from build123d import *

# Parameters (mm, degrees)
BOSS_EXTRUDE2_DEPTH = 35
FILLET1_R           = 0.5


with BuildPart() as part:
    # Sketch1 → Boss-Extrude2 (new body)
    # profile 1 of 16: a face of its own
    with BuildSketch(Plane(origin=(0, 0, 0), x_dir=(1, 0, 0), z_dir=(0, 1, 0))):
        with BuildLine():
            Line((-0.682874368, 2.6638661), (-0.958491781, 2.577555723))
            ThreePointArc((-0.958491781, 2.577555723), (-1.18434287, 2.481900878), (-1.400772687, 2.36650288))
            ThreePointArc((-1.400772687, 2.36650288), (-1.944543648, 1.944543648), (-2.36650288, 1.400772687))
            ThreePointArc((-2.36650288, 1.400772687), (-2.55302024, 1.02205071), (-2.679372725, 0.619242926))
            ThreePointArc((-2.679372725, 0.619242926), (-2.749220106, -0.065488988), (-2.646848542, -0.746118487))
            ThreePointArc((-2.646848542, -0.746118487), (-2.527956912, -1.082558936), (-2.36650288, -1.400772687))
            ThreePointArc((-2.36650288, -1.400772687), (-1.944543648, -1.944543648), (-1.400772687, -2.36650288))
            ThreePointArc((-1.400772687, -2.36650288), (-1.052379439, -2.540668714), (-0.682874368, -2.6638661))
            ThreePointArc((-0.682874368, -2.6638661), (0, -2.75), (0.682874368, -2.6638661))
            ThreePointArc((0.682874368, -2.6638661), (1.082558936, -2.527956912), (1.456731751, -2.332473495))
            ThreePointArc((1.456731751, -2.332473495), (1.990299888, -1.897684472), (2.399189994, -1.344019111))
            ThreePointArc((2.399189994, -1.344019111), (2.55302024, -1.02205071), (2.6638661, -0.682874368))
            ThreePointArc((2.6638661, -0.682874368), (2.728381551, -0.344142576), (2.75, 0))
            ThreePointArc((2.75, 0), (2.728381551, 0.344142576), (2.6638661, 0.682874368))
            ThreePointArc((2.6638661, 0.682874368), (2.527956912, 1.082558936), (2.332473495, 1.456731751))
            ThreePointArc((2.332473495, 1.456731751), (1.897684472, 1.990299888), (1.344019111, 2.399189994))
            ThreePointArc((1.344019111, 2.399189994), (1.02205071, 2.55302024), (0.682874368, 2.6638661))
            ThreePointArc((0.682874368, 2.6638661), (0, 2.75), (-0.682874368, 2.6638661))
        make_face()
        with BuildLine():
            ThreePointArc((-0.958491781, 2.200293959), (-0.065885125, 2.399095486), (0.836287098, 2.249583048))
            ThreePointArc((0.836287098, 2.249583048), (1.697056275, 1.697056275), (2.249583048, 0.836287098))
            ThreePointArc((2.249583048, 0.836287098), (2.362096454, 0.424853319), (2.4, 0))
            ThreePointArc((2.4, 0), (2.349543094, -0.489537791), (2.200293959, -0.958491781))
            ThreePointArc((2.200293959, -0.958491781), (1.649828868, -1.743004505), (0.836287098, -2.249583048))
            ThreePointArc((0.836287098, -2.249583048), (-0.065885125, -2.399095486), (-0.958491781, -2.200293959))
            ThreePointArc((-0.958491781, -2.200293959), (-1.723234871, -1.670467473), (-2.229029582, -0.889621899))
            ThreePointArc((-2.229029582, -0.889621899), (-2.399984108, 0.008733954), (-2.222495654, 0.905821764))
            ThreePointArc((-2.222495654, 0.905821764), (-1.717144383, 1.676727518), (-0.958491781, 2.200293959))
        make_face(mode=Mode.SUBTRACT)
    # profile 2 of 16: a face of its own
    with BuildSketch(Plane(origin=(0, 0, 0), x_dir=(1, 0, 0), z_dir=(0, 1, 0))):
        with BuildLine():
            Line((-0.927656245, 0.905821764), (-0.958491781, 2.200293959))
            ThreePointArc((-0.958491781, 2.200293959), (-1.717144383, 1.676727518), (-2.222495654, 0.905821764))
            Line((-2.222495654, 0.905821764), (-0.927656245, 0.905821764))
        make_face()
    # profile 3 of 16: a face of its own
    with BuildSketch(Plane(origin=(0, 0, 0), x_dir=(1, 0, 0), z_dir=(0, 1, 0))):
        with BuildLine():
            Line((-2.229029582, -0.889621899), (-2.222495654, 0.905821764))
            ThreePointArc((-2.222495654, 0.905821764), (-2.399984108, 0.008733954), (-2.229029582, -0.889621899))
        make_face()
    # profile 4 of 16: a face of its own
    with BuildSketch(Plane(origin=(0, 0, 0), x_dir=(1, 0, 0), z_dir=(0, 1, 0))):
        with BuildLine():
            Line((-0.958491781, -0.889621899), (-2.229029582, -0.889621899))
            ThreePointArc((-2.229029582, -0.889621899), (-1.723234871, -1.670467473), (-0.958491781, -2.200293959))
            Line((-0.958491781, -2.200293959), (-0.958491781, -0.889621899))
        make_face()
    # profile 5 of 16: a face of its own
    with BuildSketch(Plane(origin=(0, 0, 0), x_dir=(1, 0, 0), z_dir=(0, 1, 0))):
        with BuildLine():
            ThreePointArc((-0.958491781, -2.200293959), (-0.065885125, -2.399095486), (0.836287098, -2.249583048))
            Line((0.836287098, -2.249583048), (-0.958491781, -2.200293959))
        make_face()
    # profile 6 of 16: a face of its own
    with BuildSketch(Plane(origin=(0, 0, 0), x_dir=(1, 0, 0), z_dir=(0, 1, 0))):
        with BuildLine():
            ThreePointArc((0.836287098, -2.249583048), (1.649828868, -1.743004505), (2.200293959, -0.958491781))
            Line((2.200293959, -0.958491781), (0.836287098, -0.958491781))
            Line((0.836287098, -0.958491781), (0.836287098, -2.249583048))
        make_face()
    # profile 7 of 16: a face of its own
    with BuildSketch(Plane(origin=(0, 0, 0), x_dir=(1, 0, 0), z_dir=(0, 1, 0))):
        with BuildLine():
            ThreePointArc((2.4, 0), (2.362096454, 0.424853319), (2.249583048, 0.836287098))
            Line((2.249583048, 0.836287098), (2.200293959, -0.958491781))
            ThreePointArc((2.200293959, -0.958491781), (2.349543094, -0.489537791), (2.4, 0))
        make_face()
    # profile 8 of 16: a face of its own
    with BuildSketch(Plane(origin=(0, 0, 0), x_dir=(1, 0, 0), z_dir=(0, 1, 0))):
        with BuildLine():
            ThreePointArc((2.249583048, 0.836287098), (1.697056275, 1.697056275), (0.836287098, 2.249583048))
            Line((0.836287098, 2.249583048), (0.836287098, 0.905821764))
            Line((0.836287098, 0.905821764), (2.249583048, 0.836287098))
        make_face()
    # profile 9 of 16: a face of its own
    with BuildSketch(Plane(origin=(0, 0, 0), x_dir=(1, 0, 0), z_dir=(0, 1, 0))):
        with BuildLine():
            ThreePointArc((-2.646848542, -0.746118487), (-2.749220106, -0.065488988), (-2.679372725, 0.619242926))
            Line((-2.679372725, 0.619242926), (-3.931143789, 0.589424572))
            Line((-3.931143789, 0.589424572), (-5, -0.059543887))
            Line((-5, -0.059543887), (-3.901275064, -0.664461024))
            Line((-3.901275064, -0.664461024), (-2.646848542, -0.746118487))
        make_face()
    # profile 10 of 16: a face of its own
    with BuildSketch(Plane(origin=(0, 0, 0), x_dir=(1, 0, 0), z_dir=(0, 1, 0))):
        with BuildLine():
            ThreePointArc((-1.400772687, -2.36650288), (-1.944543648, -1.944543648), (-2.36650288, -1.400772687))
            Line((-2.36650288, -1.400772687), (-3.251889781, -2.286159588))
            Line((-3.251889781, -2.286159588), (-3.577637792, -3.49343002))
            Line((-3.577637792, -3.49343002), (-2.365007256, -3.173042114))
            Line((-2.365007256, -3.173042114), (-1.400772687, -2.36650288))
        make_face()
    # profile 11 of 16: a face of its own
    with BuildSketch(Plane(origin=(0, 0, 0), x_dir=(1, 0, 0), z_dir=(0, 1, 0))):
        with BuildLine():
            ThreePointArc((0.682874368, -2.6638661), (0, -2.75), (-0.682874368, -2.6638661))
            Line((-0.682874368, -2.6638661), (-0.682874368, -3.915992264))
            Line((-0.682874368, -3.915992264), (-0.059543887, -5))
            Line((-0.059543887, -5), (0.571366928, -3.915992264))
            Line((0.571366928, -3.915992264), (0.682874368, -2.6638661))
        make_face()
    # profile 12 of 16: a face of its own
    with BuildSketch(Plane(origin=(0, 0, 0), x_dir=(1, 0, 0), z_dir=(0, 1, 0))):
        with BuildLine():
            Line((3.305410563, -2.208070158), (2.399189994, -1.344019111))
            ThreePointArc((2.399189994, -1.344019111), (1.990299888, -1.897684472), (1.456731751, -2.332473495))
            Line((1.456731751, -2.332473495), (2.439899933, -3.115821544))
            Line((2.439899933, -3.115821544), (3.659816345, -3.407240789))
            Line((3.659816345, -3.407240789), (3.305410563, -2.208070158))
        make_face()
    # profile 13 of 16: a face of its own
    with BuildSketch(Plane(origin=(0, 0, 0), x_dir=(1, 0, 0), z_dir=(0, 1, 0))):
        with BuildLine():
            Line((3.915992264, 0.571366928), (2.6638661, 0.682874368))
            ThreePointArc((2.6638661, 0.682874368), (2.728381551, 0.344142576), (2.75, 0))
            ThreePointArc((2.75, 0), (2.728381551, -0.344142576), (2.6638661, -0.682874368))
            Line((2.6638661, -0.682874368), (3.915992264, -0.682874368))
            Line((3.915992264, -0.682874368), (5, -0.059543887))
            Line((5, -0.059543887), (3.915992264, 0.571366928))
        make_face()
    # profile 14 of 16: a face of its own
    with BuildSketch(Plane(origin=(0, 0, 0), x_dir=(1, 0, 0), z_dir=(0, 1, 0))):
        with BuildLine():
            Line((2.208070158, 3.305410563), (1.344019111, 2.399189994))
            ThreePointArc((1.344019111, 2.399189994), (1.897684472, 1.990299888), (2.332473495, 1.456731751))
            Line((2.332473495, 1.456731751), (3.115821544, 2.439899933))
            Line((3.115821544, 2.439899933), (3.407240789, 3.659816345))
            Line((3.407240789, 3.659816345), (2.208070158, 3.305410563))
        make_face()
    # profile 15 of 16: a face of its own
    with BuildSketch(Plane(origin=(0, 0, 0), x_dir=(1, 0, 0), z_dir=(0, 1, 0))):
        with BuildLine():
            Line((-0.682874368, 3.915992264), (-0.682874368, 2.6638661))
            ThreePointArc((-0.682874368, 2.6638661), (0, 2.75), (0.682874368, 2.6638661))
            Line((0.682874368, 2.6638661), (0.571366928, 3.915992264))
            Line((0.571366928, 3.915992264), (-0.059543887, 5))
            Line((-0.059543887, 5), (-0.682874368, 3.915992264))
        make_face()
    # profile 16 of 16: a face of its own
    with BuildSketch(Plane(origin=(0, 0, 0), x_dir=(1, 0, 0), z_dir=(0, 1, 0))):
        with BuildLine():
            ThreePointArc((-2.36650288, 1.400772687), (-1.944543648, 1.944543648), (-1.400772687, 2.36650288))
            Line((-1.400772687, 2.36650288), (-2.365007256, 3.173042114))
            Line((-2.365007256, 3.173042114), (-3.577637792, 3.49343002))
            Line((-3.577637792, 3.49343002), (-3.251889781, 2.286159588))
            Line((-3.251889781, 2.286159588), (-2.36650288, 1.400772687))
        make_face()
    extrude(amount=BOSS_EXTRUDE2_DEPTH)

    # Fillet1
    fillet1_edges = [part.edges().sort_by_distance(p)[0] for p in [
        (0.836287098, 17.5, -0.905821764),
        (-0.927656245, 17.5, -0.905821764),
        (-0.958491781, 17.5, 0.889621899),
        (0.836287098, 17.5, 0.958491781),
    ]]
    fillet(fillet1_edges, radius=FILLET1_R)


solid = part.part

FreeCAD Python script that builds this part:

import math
import FreeCAD as App
import Part
import Sketcher
Q = App.Units.Quantity


def edges_at(feature, points):
    """Names of the edges that pass closest to the given points."""
    edges = feature.Shape.Edges
    near = lambda p: min(range(len(edges)), key=lambda i: edges[i].distToShape(Part.Vertex(*p))[0])
    return sorted({f"Edge{near(p) + 1}" for p in points})

doc = App.newDocument("Part")
body = doc.addObject("PartDesign::Body", "Body")

sketch1 = body.newObject("Sketcher::SketchObject", "Sketch")
sketch1.AttachmentSupport = (doc.getObject("XZ_Plane"), [""])
sketch1.MapMode = "FlatFace"
sketch1.addGeometry([
    Part.LineSegment(App.Vector(-0.68, -2.66, 0), App.Vector(-0.96, -2.58, 0)),
    Part.ArcOfCircle(Part.Circle(App.Vector(0, 0, 0), App.Vector(0, 0, 1), 2.75), math.radians(-120.62), math.radians(-110.4)),
    Part.LineSegment(App.Vector(-1.4, -2.37, 0), App.Vector(-2.37, -3.17, 0)),
    Part.LineSegment(App.Vector(-2.37, -3.17, 0), App.Vector(-3.58, -3.49, 0)),
    Part.LineSegment(App.Vector(-3.58, -3.49, 0), App.Vector(-3.25, -2.29, 0)),
    Part.LineSegment(App.Vector(-3.25, -2.29, 0), App.Vector(-2.37, -1.4, 0)),
    Part.ArcOfCircle(Part.Circle(App.Vector(0, 0, 0), App.Vector(0, 0, 1), 2.75), math.radians(-166.99), math.radians(-149.38)),
    Part.LineSegment(App.Vector(-2.68, -0.62, 0), App.Vector(-3.93, -0.59, 0)),
    Part.LineSegment(App.Vector(-3.93, -0.59, 0), App.Vector(-5, 0.06, 0)),
    Part.LineSegment(App.Vector(-5, 0.06, 0), App.Vector(-3.9, 0.66, 0)),
    Part.LineSegment(App.Vector(-3.9, 0.66, 0), App.Vector(-2.65, 0.75, 0)),
    Part.ArcOfCircle(Part.Circle(App.Vector(0, 0, 0), App.Vector(0, 0, 1), 2.75), math.radians(149.38), math.radians(164.26)),
    Part.LineSegment(App.Vector(-2.37, 1.4, 0), App.Vector(-3.25, 2.29, 0)),
    Part.LineSegment(App.Vector(-3.25, 2.29, 0), App.Vector(-3.58, 3.49, 0)),
    Part.LineSegment(App.Vector(-3.58, 3.49, 0), App.Vector(-2.37, 3.17, 0)),
    Part.LineSegment(App.Vector(-2.37, 3.17, 0), App.Vector(-1.4, 2.37, 0)),
    Part.ArcOfCircle(Part.Circle(App.Vector(0, 0, 0), App.Vector(0, 0, 1), 2.75), math.radians(104.38), math.radians(120.62)),
    Part.LineSegment(App.Vector(-0.68, 2.66, 0), App.Vector(-0.68, 3.92, 0)),
    Part.LineSegment(App.Vector(-0.68, 3.92, 0), App.Vector(-0.06, 5, 0)),
    Part.LineSegment(App.Vector(-0.06, 5, 0), App.Vector(0.57, 3.92, 0)),
    Part.LineSegment(App.Vector(0.57, 3.92, 0), App.Vector(0.68, 2.66, 0)),
    Part.ArcOfCircle(Part.Circle(App.Vector(0, 0, 0), App.Vector(0, 0, 1), 2.75), math.radians(58.01), math.radians(75.62)),
    Part.LineSegment(App.Vector(1.46, 2.33, 0), App.Vector(2.44, 3.12, 0)),
    Part.LineSegment(App.Vector(2.44, 3.12, 0), App.Vector(3.66, 3.41, 0)),
    Part.LineSegment(App.Vector(3.66, 3.41, 0), App.Vector(3.31, 2.21, 0)),
    Part.LineSegment(App.Vector(3.31, 2.21, 0), App.Vector(2.4, 1.34, 0)),
    Part.ArcOfCircle(Part.Circle(App.Vector(0, 0, 0), App.Vector(0, 0, 1), 2.75), math.radians(14.38), math.radians(29.26)),
    Part.LineSegment(App.Vector(2.66, 0.68, 0), App.Vector(3.92, 0.68, 0)),
    Part.LineSegment(App.Vector(3.92, 0.68, 0), App.Vector(5, 0.06, 0)),
    Part.LineSegment(App.Vector(5, 0.06, 0), App.Vector(3.92, -0.57, 0)),
    Part.LineSegment(App.Vector(3.92, -0.57, 0), App.Vector(2.66, -0.68, 0)),
    Part.ArcOfCircle(Part.Circle(App.Vector(0, 0, 0), App.Vector(0, 0, 1), 2.75), math.radians(-31.99), math.radians(-14.38)),
    Part.LineSegment(App.Vector(2.33, -1.46, 0), App.Vector(3.12, -2.44, 0)),
    Part.LineSegment(App.Vector(3.12, -2.44, 0), App.Vector(3.41, -3.66, 0)),
    Part.LineSegment(App.Vector(3.41, -3.66, 0), App.Vector(2.21, -3.31, 0)),
    Part.LineSegment(App.Vector(2.21, -3.31, 0), App.Vector(1.34, -2.4, 0)),
    Part.ArcOfCircle(Part.Circle(App.Vector(0, 0, 0), App.Vector(0, 0, 1), 2.75), math.radians(-75.62), math.radians(-60.74)),
    Part.LineSegment(App.Vector(0.68, -2.66, 0), App.Vector(0.57, -3.92, 0)),
    Part.LineSegment(App.Vector(0.57, -3.92, 0), App.Vector(-0.06, -5, 0)),
    Part.LineSegment(App.Vector(-0.06, -5, 0), App.Vector(-0.68, -3.92, 0)),
    Part.LineSegment(App.Vector(-0.68, -3.92, 0), App.Vector(-0.68, -2.66, 0)),
    Part.ArcOfCircle(Part.Circle(App.Vector(0, 0, 0), App.Vector(0, 0, 1), 2.4), math.radians(-114), math.radians(-70)),
    Part.LineSegment(App.Vector(0.84, -2.25, 0), App.Vector(0.84, -0.91, 0)),
    Part.LineSegment(App.Vector(0.84, -0.91, 0), App.Vector(2.25, -0.84, 0)),
    Part.LineSegment(App.Vector(2.25, -0.84, 0), App.Vector(2.2, 0.96, 0)),
    Part.LineSegment(App.Vector(2.2, 0.96, 0), App.Vector(0.84, 0.96, 0)),
    Part.LineSegment(App.Vector(0.84, 0.96, 0), App.Vector(0.84, 2.25, 0)),
    Part.LineSegment(App.Vector(0.84, 2.25, 0), App.Vector(-0.96, 2.2, 0)),
    Part.LineSegment(App.Vector(-0.96, 2.2, 0), App.Vector(-0.96, 0.89, 0)),
    Part.LineSegment(App.Vector(-0.96, 0.89, 0), App.Vector(-2.23, 0.89, 0)),
    Part.LineSegment(App.Vector(-2.23, 0.89, 0), App.Vector(-2.22, -0.91, 0)),
    Part.LineSegment(App.Vector(-2.22, -0.91, 0), App.Vector(-0.93, -0.91, 0)),
    Part.LineSegment(App.Vector(-0.93, -0.91, 0), App.Vector(-0.96, -2.2, 0)),
], False)
sketch1.addConstraint([
    Sketcher.Constraint("Coincident", 0, 2, 1, 2),
    Sketcher.Constraint("Coincident", 1, 1, 2, 1),
    Sketcher.Constraint("Coincident", 2, 2, 3, 1),
    Sketcher.Constraint("Coincident", 3, 2, 4, 1),
    Sketcher.Constraint("Coincident", 4, 2, 5, 1),
    Sketcher.Constraint("Coincident", 5, 2, 6, 2),
    Sketcher.Constraint("Coincident", 6, 1, 7, 1),
    Sketcher.Constraint("Coincident", 7, 2, 8, 1),
    Sketcher.Constraint("Coincident", 8, 2, 9, 1),
    Sketcher.Constraint("Coincident", 9, 2, 10, 1),
    Sketcher.Constraint("Coincident", 10, 2, 11, 2),
    Sketcher.Constraint("Coincident", 11, 1, 12, 1),
    Sketcher.Constraint("Coincident", 12, 2, 13, 1),
    Sketcher.Constraint("Coincident", 13, 2, 14, 1),
    Sketcher.Constraint("Coincident", 14, 2, 15, 1),
    Sketcher.Constraint("Coincident", 15, 2, 16, 2),
    Sketcher.Constraint("Coincident", 16, 1, 17, 1),
    Sketcher.Constraint("Coincident", 17, 2, 18, 1),
    Sketcher.Constraint("Coincident", 18, 2, 19, 1),
    Sketcher.Constraint("Coincident", 19, 2, 20, 1),
    Sketcher.Constraint("Coincident", 20, 2, 21, 2),
    Sketcher.Constraint("Coincident", 21, 1, 22, 1),
    Sketcher.Constraint("Coincident", 22, 2, 23, 1),
    Sketcher.Constraint("Coincident", 23, 2, 24, 1),
    Sketcher.Constraint("Coincident", 24, 2, 25, 1),
    Sketcher.Constraint("Coincident", 25, 2, 26, 2),
    Sketcher.Constraint("Coincident", 26, 1, 27, 1),
    Sketcher.Constraint("Coincident", 27, 2, 28, 1),
    Sketcher.Constraint("Coincident", 28, 2, 29, 1),
    Sketcher.Constraint("Coincident", 29, 2, 30, 1),
    Sketcher.Constraint("Coincident", 30, 2, 31, 2),
    Sketcher.Constraint("Coincident", 31, 1, 32, 1),
    Sketcher.Constraint("Coincident", 32, 2, 33, 1),
    Sketcher.Constraint("Coincident", 33, 2, 34, 1),
    Sketcher.Constraint("Coincident", 34, 2, 35, 1),
    Sketcher.Constraint("Coincident", 35, 2, 36, 2),
    Sketcher.Constraint("Coincident", 36, 1, 37, 1),
    Sketcher.Constraint("Coincident", 37, 2, 38, 1),
    Sketcher.Constraint("Coincident", 38, 2, 39, 1),
    Sketcher.Constraint("Coincident", 39, 2, 40, 1),
    Sketcher.Constraint("Coincident", 40, 2, 0, 1),
    Sketcher.Constraint("Coincident", 41, 2, 42, 1),
    Sketcher.Constraint("Coincident", 42, 2, 43, 1),
    Sketcher.Constraint("Coincident", 43, 2, 44, 1),
    Sketcher.Constraint("Coincident", 44, 2, 45, 1),
    Sketcher.Constraint("Coincident", 45, 2, 46, 1),
    Sketcher.Constraint("Coincident", 46, 2, 47, 1),
    Sketcher.Constraint("Coincident", 47, 2, 48, 1),
    Sketcher.Constraint("Coincident", 48, 2, 49, 1),
    Sketcher.Constraint("Coincident", 49, 2, 50, 1),
    Sketcher.Constraint("Coincident", 50, 2, 51, 1),
    Sketcher.Constraint("Coincident", 51, 2, 52, 1),
    Sketcher.Constraint("Coincident", 52, 2, 41, 1),
    Sketcher.Constraint("Vertical", 17),
    Sketcher.Constraint("Horizontal", 27),
    Sketcher.Constraint("Vertical", 40),
    Sketcher.Constraint("Vertical", 42),
    Sketcher.Constraint("Horizontal", 45),
    Sketcher.Constraint("Vertical", 46),
    Sketcher.Constraint("Vertical", 48),
    Sketcher.Constraint("Horizontal", 49),
    Sketcher.Constraint("Horizontal", 51),
    Sketcher.Constraint("Coincident", 1, 3, -1, 1),
    Sketcher.Constraint("Coincident", 6, 3, -1, 1),
    Sketcher.Constraint("Coincident", 11, 3, -1, 1),
    Sketcher.Constraint("Coincident", 16, 3, -1, 1),
    Sketcher.Constraint("Coincident", 21, 3, -1, 1),
    Sketcher.Constraint("Coincident", 26, 3, -1, 1),
    Sketcher.Constraint("Coincident", 31, 3, -1, 1),
    Sketcher.Constraint("Coincident", 36, 3, -1, 1),
    Sketcher.Constraint("Coincident", 41, 3, -1, 1),
    Sketcher.Constraint("Equal", 1, 6),
    Sketcher.Constraint("Equal", 6, 11),
    Sketcher.Constraint("Equal", 11, 16),
    Sketcher.Constraint("Equal", 16, 21),
    Sketcher.Constraint("Equal", 21, 26),
    Sketcher.Constraint("Equal", 26, 31),
    Sketcher.Constraint("Equal", 31, 36),
    Sketcher.Constraint("Symmetric", 20, 2, 40, 2, -1, 1),
    Sketcher.Constraint("Symmetric", 8, 2, 28, 2, -2),
    Sketcher.Constraint("Symmetric", 4, 2, 12, 2, -1),
    Sketcher.Constraint("Symmetric", 3, 2, 13, 2, -1),
    Sketcher.Constraint("Symmetric", 2, 2, 14, 2, -1),
    Sketcher.Constraint("Symmetric", 19, 2, 37, 2, -1),
    Sketcher.Constraint("Symmetric", 18, 2, 38, 2, -1),
    Sketcher.Constraint("Symmetric", 17, 2, 39, 2, -1),
    Sketcher.Constraint("Symmetric", 41, 2, 46, 2, -1),
    Sketcher.Constraint("Symmetric", 47, 2, 52, 2, -1),
    Sketcher.Constraint("Perpendicular", 5, 12),
    Sketcher.Constraint("Perpendicular", 18, 28),
    Sketcher.Constraint("Perpendicular", 19, 29),
    Sketcher.Constraint("Perpendicular", 20, 30),
    Sketcher.Constraint("Perpendicular", 22, 32),
    Sketcher.Constraint("Perpendicular", 23, 33),
    Sketcher.Constraint("Perpendicular", 24, 34),
    Sketcher.Constraint("Perpendicular", 25, 35),
    Sketcher.Constraint("Perpendicular", 44, 47),
    Sketcher.Constraint("Perpendicular", 7, 52),
    Sketcher.Constraint("Horizontal", 17, 2, 19, 2),
    Sketcher.Constraint("Horizontal", 36, 1, 40, 2),
    Sketcher.Constraint("Horizontal", 42, 2, 50, 2),
    Sketcher.Constraint("Vertical", 5, 2, 11, 1),
    Sketcher.Constraint("Vertical", 1, 1, 15, 2),
    Sketcher.Constraint("Vertical", 27, 2, 29, 2),
    Sketcher.Constraint("Vertical", 26, 1, 30, 2),
    Sketcher.Constraint("Vertical", 0, 2, 47, 2),
    Sketcher.Constraint("Equal", 27, 17),
    Sketcher.Constraint("Equal", 5, 7),
    Sketcher.Constraint("Equal", 4, 8),
    Sketcher.Constraint("Equal", 3, 9),
    Sketcher.Constraint("Equal", 2, 10),
    Sketcher.Constraint("Equal", 13, 18),
    Sketcher.Constraint("Equal", 14, 19),
    Sketcher.Constraint("Equal", 15, 20),
    Sketcher.Constraint("Equal", 20, 22),
    Sketcher.Constraint("Equal", 19, 23),
    Sketcher.Constraint("Equal", 18, 24),
    Sketcher.Constraint("Equal", 12, 25),
    Sketcher.Constraint("Equal", 24, 28),
    Sketcher.Constraint("Equal", 30, 32),
    Sketcher.Constraint("Equal", 29, 33),
    Sketcher.Constraint("Equal", 28, 34),
    Sketcher.Constraint("Equal", 25, 35),
    Sketcher.Constraint("Equal", 44, 47),
    Sketcher.Constraint("Equal", 47, 50),
    Sketcher.Constraint("Radius", 41, Q("2.4 mm")),
    Sketcher.Constraint("Radius", 1, Q("2.75 mm")),
    Sketcher.Constraint("DistanceX", 8, 2, -1, 1, Q("5 mm")),
    Sketcher.Constraint("DistanceX", 51, 1, 51, 2, Q("1.294839 mm")),
    Sketcher.Constraint("DistanceY", 42, 1, 42, 2, Q("1.343761 mm")),
    Sketcher.Constraint("DistanceY", 46, 1, 46, 2, Q("1.291091 mm")),
    Sketcher.Constraint("DistanceX", -1, 1, 22, 2, Q("2.4399 mm")),
    Sketcher.Constraint("Distance", 2, Q("1.257081 mm")),
    Sketcher.Constraint("Distance", 3, Q("1.254241 mm")),
    Sketcher.Constraint("Distance", 52, Q("1.294839 mm")),
    Sketcher.Constraint("DistanceX", 27, 1, 27, 2, Q("1.252126 mm")),
    Sketcher.Constraint("DistanceX", 45, 2, 45, 1, Q("1.364007 mm")),
    Sketcher.Constraint("DistanceX", 49, 2, 49, 1, Q("1.270538 mm")),
    Sketcher.Constraint("DistanceY", 48, 2, 48, 1, Q("1.310672 mm")),
    Sketcher.Constraint("DistanceX", 0, 2, -1, 1, Q("0.958492 mm")),
    Sketcher.Constraint("DistanceY", 3, 2, -1, 1, Q("3.49343 mm")),
    Sketcher.Constraint("DistanceX", 4, 2, -1, 1, Q("3.25189 mm")),
    Sketcher.Constraint("DistanceY", 4, 2, -1, 1, Q("2.28616 mm")),
    Sketcher.Constraint("DistanceY", -1, 1, 9, 2, Q("0.664461 mm")),
    Sketcher.Constraint("DistanceX", 10, 2, -1, 1, Q("2.646849 mm")),
    Sketcher.Constraint("DistanceX", -1, 1, 21, 1, Q("1.456732 mm")),
    Sketcher.Constraint("DistanceY", -1, 1, 23, 2, Q("3.407241 mm")),
    Sketcher.Constraint("DistanceX", -1, 1, 24, 2, Q("3.305411 mm")),
    Sketcher.Constraint("DistanceX", 1, 1, -1, 1, Q("1.400773 mm")),
])
pad1 = body.newObject("PartDesign::Pad", "Pad")
pad1.Profile = sketch1
pad1.Length = 35
pad1.Reversed = True
doc.recompute()

fillet = body.newObject("PartDesign::Fillet", "Fillet")
fillet.Base = (pad1, edges_at(pad1, [
    (0.836, 17.5, -0.906),
    (-0.928, 17.5, -0.906),
    (-0.958, 17.5, 0.89),
    (0.836, 17.5, 0.958),
]))
fillet.Radius = 0.5

doc.recompute()
